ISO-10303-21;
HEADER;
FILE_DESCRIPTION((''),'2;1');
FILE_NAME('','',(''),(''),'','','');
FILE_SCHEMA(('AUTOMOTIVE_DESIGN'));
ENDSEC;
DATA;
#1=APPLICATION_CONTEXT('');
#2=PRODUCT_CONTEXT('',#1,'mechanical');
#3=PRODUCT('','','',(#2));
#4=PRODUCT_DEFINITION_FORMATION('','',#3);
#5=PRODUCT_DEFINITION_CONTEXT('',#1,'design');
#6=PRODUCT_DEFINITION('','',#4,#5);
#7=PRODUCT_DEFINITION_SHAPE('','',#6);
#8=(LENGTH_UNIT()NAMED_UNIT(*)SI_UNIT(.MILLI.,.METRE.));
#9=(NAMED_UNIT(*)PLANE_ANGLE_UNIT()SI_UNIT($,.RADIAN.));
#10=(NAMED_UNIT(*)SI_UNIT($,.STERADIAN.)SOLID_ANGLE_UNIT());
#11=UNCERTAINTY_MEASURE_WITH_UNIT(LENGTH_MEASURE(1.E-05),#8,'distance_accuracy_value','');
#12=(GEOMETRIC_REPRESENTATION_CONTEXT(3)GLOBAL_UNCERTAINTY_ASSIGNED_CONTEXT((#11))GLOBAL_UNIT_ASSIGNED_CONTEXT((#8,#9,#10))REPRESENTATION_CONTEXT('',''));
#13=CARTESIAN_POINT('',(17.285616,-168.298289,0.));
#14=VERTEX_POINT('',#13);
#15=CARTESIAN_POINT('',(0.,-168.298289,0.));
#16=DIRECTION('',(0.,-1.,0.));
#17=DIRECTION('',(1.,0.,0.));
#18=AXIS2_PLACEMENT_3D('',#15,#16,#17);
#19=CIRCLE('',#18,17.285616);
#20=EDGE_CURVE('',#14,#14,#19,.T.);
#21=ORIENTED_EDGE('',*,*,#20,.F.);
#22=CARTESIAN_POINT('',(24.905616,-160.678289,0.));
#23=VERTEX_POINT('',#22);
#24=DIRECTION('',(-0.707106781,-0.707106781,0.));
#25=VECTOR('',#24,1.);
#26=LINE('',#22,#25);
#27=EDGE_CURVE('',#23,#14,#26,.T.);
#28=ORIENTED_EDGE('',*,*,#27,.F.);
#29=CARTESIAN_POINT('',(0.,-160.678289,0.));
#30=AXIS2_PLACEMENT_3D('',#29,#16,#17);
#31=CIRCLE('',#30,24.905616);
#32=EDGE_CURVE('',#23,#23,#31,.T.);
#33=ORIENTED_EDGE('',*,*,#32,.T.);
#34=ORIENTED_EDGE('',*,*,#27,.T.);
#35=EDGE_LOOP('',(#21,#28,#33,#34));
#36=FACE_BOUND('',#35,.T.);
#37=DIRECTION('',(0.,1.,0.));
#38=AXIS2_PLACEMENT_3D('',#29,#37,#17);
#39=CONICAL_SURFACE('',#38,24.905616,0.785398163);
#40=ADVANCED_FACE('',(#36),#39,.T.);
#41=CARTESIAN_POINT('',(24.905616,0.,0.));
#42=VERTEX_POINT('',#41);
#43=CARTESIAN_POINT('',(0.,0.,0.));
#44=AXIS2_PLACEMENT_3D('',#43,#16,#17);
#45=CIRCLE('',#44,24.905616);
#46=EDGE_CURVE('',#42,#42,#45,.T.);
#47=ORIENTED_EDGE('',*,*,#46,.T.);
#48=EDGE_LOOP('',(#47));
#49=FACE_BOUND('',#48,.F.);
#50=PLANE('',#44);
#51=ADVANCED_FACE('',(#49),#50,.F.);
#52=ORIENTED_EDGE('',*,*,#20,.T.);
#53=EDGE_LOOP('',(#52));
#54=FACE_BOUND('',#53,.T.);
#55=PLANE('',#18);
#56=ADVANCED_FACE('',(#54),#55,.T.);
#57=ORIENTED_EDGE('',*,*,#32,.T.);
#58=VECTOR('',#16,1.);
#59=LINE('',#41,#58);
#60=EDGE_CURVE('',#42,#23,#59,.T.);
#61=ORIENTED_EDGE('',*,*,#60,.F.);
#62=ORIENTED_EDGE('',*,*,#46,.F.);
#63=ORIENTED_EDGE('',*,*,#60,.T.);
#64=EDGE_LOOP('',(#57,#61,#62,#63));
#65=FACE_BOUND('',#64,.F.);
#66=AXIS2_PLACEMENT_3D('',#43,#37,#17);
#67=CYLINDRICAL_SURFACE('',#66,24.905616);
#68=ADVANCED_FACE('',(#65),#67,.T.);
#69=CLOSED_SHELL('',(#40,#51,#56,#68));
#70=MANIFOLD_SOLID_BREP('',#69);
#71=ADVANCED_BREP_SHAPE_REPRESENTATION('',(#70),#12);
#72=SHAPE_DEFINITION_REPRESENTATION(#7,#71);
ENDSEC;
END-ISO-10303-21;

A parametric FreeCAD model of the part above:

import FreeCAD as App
import Part
import Sketcher

V = App.Vector
Q = App.Units.Quantity


def edges_at(feature, points):
    """Names of the edges that pass closest to the given points."""
    edges = feature.Shape.Edges
    near = lambda p: min(range(len(edges)), key=lambda i: edges[i].distToShape(Part.Vertex(*p))[0])
    return sorted({f"Edge{near(p) + 1}" for p in points})

doc = App.newDocument("Part")
body = doc.addObject("PartDesign::Body", "Body")

sketch1 = body.newObject("Sketcher::SketchObject", "Sketch")
sketch1.AttachmentSupport = (doc.getObject("XZ_Plane"), [""])
sketch1.MapMode = "FlatFace"
sketch1.addGeometry(Part.Circle(V(0, 0, 0), V(0, 0, 1), 25), False)
sketch1.addConstraint(Sketcher.Constraint("Coincident", 0, 3, -1, 1))
sketch1.addConstraint(Sketcher.Constraint("Diameter", 0, Q("49.811232 mm")))
pad1 = body.newObject("PartDesign::Pad", "Pad")
pad1.Profile = sketch1
pad1.Length = 168.298289
doc.recompute()

chamfer = body.newObject("PartDesign::Chamfer", "Chamfer")
chamfer.Base = (pad1, edges_at(pad1, [(-24.906, -168.298, 0)]))
chamfer.Size = Q("0.3 in")

doc.recompute()
